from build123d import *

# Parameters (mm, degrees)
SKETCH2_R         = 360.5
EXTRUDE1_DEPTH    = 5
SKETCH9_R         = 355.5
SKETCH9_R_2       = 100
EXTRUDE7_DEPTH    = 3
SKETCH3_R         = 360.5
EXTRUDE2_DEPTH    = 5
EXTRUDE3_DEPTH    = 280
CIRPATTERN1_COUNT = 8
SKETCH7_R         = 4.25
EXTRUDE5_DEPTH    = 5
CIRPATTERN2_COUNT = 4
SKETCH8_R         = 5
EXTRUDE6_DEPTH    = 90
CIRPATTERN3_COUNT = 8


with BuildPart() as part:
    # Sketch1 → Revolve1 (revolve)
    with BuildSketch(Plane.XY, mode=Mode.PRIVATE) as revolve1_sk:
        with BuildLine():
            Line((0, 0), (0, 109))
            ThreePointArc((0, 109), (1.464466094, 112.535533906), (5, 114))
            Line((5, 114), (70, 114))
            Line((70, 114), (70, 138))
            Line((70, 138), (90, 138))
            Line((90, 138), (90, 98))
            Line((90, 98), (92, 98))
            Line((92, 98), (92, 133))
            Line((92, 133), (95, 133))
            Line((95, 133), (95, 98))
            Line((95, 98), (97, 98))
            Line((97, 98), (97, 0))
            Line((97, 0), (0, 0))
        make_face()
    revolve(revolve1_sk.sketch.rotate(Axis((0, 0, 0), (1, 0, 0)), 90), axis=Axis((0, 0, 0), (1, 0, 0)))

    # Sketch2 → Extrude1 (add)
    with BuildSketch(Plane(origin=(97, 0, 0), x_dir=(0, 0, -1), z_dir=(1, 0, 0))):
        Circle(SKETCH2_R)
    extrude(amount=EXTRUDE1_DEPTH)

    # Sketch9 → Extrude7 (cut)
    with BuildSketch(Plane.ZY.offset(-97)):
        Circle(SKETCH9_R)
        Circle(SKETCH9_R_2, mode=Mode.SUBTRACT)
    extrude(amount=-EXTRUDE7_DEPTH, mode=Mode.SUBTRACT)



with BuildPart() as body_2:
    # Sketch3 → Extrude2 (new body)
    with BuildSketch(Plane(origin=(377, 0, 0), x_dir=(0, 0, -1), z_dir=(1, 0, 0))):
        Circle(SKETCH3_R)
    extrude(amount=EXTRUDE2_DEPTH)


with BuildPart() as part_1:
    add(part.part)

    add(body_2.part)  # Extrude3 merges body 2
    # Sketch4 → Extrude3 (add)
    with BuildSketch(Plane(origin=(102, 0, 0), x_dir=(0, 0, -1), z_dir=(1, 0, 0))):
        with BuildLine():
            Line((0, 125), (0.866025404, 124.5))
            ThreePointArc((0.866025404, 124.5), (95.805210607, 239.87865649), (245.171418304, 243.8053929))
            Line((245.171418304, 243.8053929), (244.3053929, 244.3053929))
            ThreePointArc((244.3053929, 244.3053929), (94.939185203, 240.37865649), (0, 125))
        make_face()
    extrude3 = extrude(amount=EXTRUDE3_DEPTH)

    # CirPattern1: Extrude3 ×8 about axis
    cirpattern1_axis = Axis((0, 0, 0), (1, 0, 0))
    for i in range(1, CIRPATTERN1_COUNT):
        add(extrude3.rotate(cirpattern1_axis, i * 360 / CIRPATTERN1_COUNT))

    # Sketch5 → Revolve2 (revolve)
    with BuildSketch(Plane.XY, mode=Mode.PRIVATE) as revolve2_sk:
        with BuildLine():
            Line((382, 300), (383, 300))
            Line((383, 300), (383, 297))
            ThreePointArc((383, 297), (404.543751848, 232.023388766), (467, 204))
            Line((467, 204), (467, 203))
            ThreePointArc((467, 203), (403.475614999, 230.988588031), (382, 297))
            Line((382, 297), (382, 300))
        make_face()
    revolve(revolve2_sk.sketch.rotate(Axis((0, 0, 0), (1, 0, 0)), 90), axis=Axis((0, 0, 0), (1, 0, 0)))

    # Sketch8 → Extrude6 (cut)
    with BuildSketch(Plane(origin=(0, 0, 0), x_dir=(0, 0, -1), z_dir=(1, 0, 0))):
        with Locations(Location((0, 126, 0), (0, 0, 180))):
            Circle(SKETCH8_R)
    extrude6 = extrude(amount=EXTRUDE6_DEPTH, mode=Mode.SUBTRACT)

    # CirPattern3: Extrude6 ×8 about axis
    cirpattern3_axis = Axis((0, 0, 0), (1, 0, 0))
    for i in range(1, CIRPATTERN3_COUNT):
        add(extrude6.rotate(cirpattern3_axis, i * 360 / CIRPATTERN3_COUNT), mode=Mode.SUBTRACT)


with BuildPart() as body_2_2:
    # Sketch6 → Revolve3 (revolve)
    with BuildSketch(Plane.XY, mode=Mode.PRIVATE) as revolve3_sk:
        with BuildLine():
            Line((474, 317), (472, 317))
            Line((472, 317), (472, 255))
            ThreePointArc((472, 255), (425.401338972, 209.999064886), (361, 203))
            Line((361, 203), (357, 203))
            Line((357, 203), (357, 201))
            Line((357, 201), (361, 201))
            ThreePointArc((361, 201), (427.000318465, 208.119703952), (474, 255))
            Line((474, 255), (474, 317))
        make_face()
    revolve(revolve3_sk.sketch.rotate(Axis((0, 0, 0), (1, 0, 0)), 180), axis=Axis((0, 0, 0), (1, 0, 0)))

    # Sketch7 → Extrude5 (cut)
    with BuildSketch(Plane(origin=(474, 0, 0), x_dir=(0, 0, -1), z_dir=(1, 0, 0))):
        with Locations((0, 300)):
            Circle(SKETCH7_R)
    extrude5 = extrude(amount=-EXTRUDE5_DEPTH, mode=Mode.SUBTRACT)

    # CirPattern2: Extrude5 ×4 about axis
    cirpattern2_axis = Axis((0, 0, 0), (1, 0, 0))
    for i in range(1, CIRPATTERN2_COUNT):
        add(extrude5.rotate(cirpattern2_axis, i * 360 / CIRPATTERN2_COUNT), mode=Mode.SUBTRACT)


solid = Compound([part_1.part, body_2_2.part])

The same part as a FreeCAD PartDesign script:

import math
import FreeCAD as App
import Part
import Sketcher

V = App.Vector
Q = App.Units.Quantity

doc = App.newDocument("Part")
body = doc.addObject("PartDesign::Body", "Body")

sketch1 = body.newObject("Sketcher::SketchObject", "Sketch")
sketch1.AttachmentSupport = (doc.getObject("XY_Plane"), [""])
sketch1.MapMode = "FlatFace"
sketch1.addGeometry(Part.LineSegment(V(0, 109, 0), V(0, 0, 0)), False)
sketch1.addGeometry(Part.LineSegment(V(0, 0, 0), V(97, 0, 0)), False)
sketch1.addGeometry(Part.LineSegment(V(97, 0, 0), V(97, 98, 0)), False)
sketch1.addGeometry(Part.LineSegment(V(97, 98, 0), V(95, 98, 0)), False)
sketch1.addGeometry(Part.LineSegment(V(95, 98, 0), V(95, 133, 0)), False)
sketch1.addGeometry(Part.LineSegment(V(95, 133, 0), V(92, 133, 0)), False)
sketch1.addGeometry(Part.LineSegment(V(92, 133, 0), V(92, 98, 0)), False)
sketch1.addGeometry(Part.LineSegment(V(92, 98, 0), V(90, 98, 0)), False)
sketch1.addGeometry(Part.LineSegment(V(90, 98, 0), V(90, 138, 0)), False)
sketch1.addGeometry(Part.LineSegment(V(90, 138, 0), V(70, 138, 0)), False)
sketch1.addGeometry(Part.LineSegment(V(70, 138, 0), V(70, 114, 0)), False)
sketch1.addGeometry(Part.LineSegment(V(70, 114, 0), V(5, 114, 0)), False)
sketch1.addGeometry(Part.ArcOfCircle(Part.Circle(V(5, 109, 0), V(0, 0, 1), 5), math.radians(90), math.radians(180)), False)
sketch1.addConstraint(Sketcher.Constraint("Coincident", 0, 2, 1, 1))
sketch1.addConstraint(Sketcher.Constraint("Coincident", 1, 2, 2, 1))
sketch1.addConstraint(Sketcher.Constraint("Coincident", 2, 2, 3, 1))
sketch1.addConstraint(Sketcher.Constraint("Coincident", 3, 2, 4, 1))
sketch1.addConstraint(Sketcher.Constraint("Coincident", 4, 2, 5, 1))
sketch1.addConstraint(Sketcher.Constraint("Coincident", 5, 2, 6, 1))
sketch1.addConstraint(Sketcher.Constraint("Coincident", 6, 2, 7, 1))
sketch1.addConstraint(Sketcher.Constraint("Coincident", 7, 2, 8, 1))
sketch1.addConstraint(Sketcher.Constraint("Coincident", 8, 2, 9, 1))
sketch1.addConstraint(Sketcher.Constraint("Coincident", 9, 2, 10, 1))
sketch1.addConstraint(Sketcher.Constraint("Coincident", 10, 2, 11, 1))
sketch1.addConstraint(Sketcher.Constraint("Tangent", 11, 2, 12, 1))
sketch1.addConstraint(Sketcher.Constraint("Tangent", 12, 2, 0, 1))
sketch1.addConstraint(Sketcher.Constraint("Vertical", 0))
sketch1.addConstraint(Sketcher.Constraint("Horizontal", 1))
sketch1.addConstraint(Sketcher.Constraint("Vertical", 2))
sketch1.addConstraint(Sketcher.Constraint("Horizontal", 3))
sketch1.addConstraint(Sketcher.Constraint("Vertical", 4))
sketch1.addConstraint(Sketcher.Constraint("Horizontal", 5))
sketch1.addConstraint(Sketcher.Constraint("Vertical", 6))
sketch1.addConstraint(Sketcher.Constraint("Horizontal", 7))
sketch1.addConstraint(Sketcher.Constraint("Vertical", 8))
sketch1.addConstraint(Sketcher.Constraint("Horizontal", 9))
sketch1.addConstraint(Sketcher.Constraint("Vertical", 10))
sketch1.addConstraint(Sketcher.Constraint("Horizontal", 11))
sketch1.addConstraint(Sketcher.Constraint("Coincident", 0, 2, -1, 1))
sketch1.addConstraint(Sketcher.Constraint("Horizontal", 3, 2, 6, 2))
sketch1.addConstraint(Sketcher.Constraint("Equal", 3, 7))
sketch1.addConstraint(Sketcher.Constraint("Radius", 12, Q("5 mm")))
sketch1.addConstraint(Sketcher.Constraint("DistanceX", 1, 1, 1, 2, Q("97 mm")))
sketch1.addConstraint(Sketcher.Constraint("DistanceX", 3, 2, 3, 1, Q("2 mm")))
sketch1.addConstraint(Sketcher.Constraint("DistanceX", 5, 2, 5, 1, Q("3 mm")))
sketch1.addConstraint(Sketcher.Constraint("DistanceX", 9, 2, 9, 1, Q("20 mm")))
sketch1.addConstraint(Sketcher.Constraint("DistanceY", 0, 2, 0, 1, Q("109 mm")))
sketch1.addConstraint(Sketcher.Constraint("DistanceY", 2, 1, 2, 2, Q("98 mm")))
sketch1.addConstraint(Sketcher.Constraint("DistanceY", 4, 1, 4, 2, Q("35 mm")))
sketch1.addConstraint(Sketcher.Constraint("DistanceY", 8, 1, 8, 2, Q("40 mm")))
revolution = body.newObject("PartDesign::Revolution", "Revolution")
revolution.Profile = sketch1
revolution.ReferenceAxis = (sketch1, ["H_Axis"])
revolution.Angle = 360

sketch2 = body.newObject("Sketcher::SketchObject", "Sketch001")
sketch2.AttachmentSupport = (doc.getObject("YZ_Plane"), [""])
sketch2.MapMode = "FlatFace"
sketch2.AttachmentOffset = App.Placement(V(0, 0, 97), App.Rotation())
sketch2.addGeometry(Part.Circle(V(0, 0, 0), V(0, 0, 1), 360), False)
sketch2.addConstraint(Sketcher.Constraint("Coincident", 0, 3, -1, 1))
sketch2.addConstraint(Sketcher.Constraint("Diameter", 0, Q("721 mm")))
pad1 = body.newObject("PartDesign::Pad", "Pad")
pad1.Profile = sketch2
pad1.Length = 5

sketch3 = body.newObject("Sketcher::SketchObject", "Sketch002")
sketch3.AttachmentSupport = (doc.getObject("YZ_Plane"), [""])
sketch3.MapMode = "FlatFace"
sketch3.AttachmentOffset = App.Placement(V(0, 0, 97), App.Rotation())
sketch3.addGeometry(Part.Circle(V(0, 0, 0), V(0, 0, 1), 356), False)
sketch3.addGeometry(Part.Circle(V(0, 0, 0), V(0, 0, 1), 100), False)
sketch3.addConstraint(Sketcher.Constraint("Coincident", 0, 3, -1, 1))
sketch3.addConstraint(Sketcher.Constraint("Coincident", 1, 3, -1, 1))
sketch3.addConstraint(Sketcher.Constraint("Diameter", 0, Q("711 mm")))
sketch3.addConstraint(Sketcher.Constraint("Diameter", 1, Q("200 mm")))
pocket1 = body.newObject("PartDesign::Pocket", "Pocket")
pocket1.Profile = sketch3
pocket1.Length = 3
pocket1.Reversed = True
body2 = doc.addObject("PartDesign::Body", "Body001")

sketch4 = body2.newObject("Sketcher::SketchObject", "Sketch003")
sketch4.AttachmentSupport = (doc.getObject("YZ_Plane001"), [""])
sketch4.MapMode = "FlatFace"
sketch4.AttachmentOffset = App.Placement(V(0, 0, 377), App.Rotation())
sketch4.addGeometry(Part.Circle(V(0, 0, 0), V(0, 0, 1), 360), False)
sketch4.addConstraint(Sketcher.Constraint("Coincident", 0, 3, -1, 1))
sketch4.addConstraint(Sketcher.Constraint("Diameter", 0, Q("721 mm")))
pad2 = body2.newObject("PartDesign::Pad", "Pad001")
pad2.Profile = sketch4
pad2.Length = 5
body.AllowCompound = True
doc.recompute()

boolean = body.newObject("PartDesign::Boolean", "Boolean")
boolean.Type = "Fuse"
boolean.addObjects([body2])

sketch5 = body.newObject("Sketcher::SketchObject", "Sketch004")
sketch5.AttachmentSupport = (doc.getObject("YZ_Plane"), [""])
sketch5.MapMode = "FlatFace"
sketch5.AttachmentOffset = App.Placement(V(0, 0, 102), App.Rotation())
sketch5.addGeometry(Part.LineSegment(V(125, 0, 0), V(124.5, -0.9, 0)), False)
sketch5.addGeometry(Part.ArcOfCircle(Part.Circle(V(78.1, -174.8, 0), V(0, 0, 1), 180), math.radians(-23), math.radians(75)), False)
sketch5.addGeometry(Part.LineSegment(V(243.8, -245.2, 0), V(244.3, -244.3, 0)), False)
sketch5.addGeometry(Part.ArcOfCircle(Part.Circle(V(78.6, -173.9, 0), V(0, 0, 1), 180), math.radians(-23), math.radians(75)), False)
sketch5.addConstraint(Sketcher.Constraint("Coincident", 0, 2, 1, 2))
sketch5.addConstraint(Sketcher.Constraint("Coincident", 1, 1, 2, 1))
sketch5.addConstraint(Sketcher.Constraint("Coincident", 2, 2, 3, 1))
sketch5.addConstraint(Sketcher.Constraint("Coincident", 3, 2, 0, 1))
sketch5.addConstraint(Sketcher.Constraint("Equal", 1, 3))
sketch5.addConstraint(Sketcher.Constraint("PointOnObject", 3, 2, -1))
sketch5.addConstraint(Sketcher.Constraint("Parallel", 0, 2))
sketch5.addConstraint(Sketcher.Constraint("Equal", 0, 2))
sketch5.addConstraint(Sketcher.Constraint("Radius", 1, Q("180 mm")))
sketch5.addConstraint(Sketcher.Constraint("Angle", 0, Q("-120 deg")))
sketch5.addConstraint(Sketcher.Constraint("Distance", 0, Q("1 mm")))
sketch5.addConstraint(Sketcher.Constraint("DistanceX", -1, 1, 3, 2, Q("125 mm")))
sketch5.addConstraint(Sketcher.Constraint("DistanceY", 3, 3, -1, 1, Q("173.926041 mm")))
sketch5.addConstraint(Sketcher.Constraint("DistanceY", 1, 1, -1, 1, Q("245.171418 mm")))
pad3 = body.newObject("PartDesign::Pad", "Pad002")
pad3.Profile = sketch5
pad3.Length = 280
doc.recompute()

polarpattern = body.newObject("PartDesign::PolarPattern", "PolarPattern")
polarpattern.Originals = [pad3]
polarpattern.Axis = (doc.getObject("X_Axis"), [""])
polarpattern.Angle = 360
polarpattern.Occurrences = 8
body.Tip = polarpattern

sketch6 = body.newObject("Sketcher::SketchObject", "Sketch005")
sketch6.AttachmentSupport = (doc.getObject("XY_Plane"), [""])
sketch6.MapMode = "FlatFace"
sketch6.addGeometry(Part.LineSegment(V(383, 300, 0), V(382, 300, 0)), False)
sketch6.addGeometry(Part.LineSegment(V(382, 300, 0), V(382, 297, 0)), False)
sketch6.addGeometry(Part.ArcOfCircle(Part.Circle(V(466.5, 288, 0), V(0, 0, 1), 85), math.radians(174), math.radians(270)), False)
sketch6.addGeometry(Part.LineSegment(V(467, 203, 0), V(467, 204, 0)), False)
sketch6.addGeometry(Part.ArcOfCircle(Part.Circle(V(467.6, 289, 0), V(0, 0, 1), 85), math.radians(175), math.radians(270)), False)
sketch6.addGeometry(Part.LineSegment(V(383, 297, 0), V(383, 300, 0)), False)
sketch6.addConstraint(Sketcher.Constraint("Coincident", 0, 2, 1, 1))
sketch6.addConstraint(Sketcher.Constraint("Coincident", 1, 2, 2, 1))
sketch6.addConstraint(Sketcher.Constraint("Coincident", 2, 2, 3, 1))
sketch6.addConstraint(Sketcher.Constraint("Coincident", 3, 2, 4, 2))
sketch6.addConstraint(Sketcher.Constraint("Coincident", 4, 1, 5, 1))
sketch6.addConstraint(Sketcher.Constraint("Coincident", 5, 2, 0, 1))
sketch6.addConstraint(Sketcher.Constraint("Horizontal", 0))
sketch6.addConstraint(Sketcher.Constraint("Vertical", 1))
sketch6.addConstraint(Sketcher.Constraint("Vertical", 3))
sketch6.addConstraint(Sketcher.Constraint("Vertical", 5))
sketch6.addConstraint(Sketcher.Constraint("Equal", 2, 4))
sketch6.addConstraint(Sketcher.Constraint("Horizontal", 1, 2, 4, 1))
sketch6.addConstraint(Sketcher.Constraint("Equal", 0, 3))
sketch6.addConstraint(Sketcher.Constraint("Radius", 2, Q("85 mm")))
sketch6.addConstraint(Sketcher.Constraint("DistanceX", 0, 2, 0, 1, Q("1 mm")))
sketch6.addConstraint(Sketcher.Constraint("DistanceY", 1, 2, 1, 1, Q("3 mm")))
sketch6.addConstraint(Sketcher.Constraint("DistanceX", -1, 1, 0, 2, Q("382 mm")))
sketch6.addConstraint(Sketcher.Constraint("DistanceY", -1, 1, 0, 2, Q("300 mm")))
sketch6.addConstraint(Sketcher.Constraint("DistanceX", -1, 1, 2, 2, Q("467 mm")))
sketch6.addConstraint(Sketcher.Constraint("DistanceY", -1, 1, 2, 2, Q("203 mm")))
revolution2 = body.newObject("PartDesign::Revolution", "Revolution001")
revolution2.Profile = sketch6
revolution2.ReferenceAxis = (sketch6, ["H_Axis"])
revolution2.Angle = 360

sketch7 = body.newObject("Sketcher::SketchObject", "Sketch006")
sketch7.AttachmentSupport = (doc.getObject("YZ_Plane"), [""])
sketch7.MapMode = "FlatFace"
sketch7.addGeometry(Part.Circle(V(126, 0, 0), V(0, 0, 1), 5), False)
sketch7.addConstraint(Sketcher.Constraint("PointOnObject", 0, 3, -1))
sketch7.addConstraint(Sketcher.Constraint("Diameter", 0, Q("10 mm")))
sketch7.addConstraint(Sketcher.Constraint("DistanceX", -1, 1, 0, 3, Q("126 mm")))
pocket2 = body.newObject("PartDesign::Pocket", "Pocket001")
pocket2.Profile = sketch7
pocket2.Length = 90
pocket2.Reversed = True
doc.recompute()

polarpattern2 = body.newObject("PartDesign::PolarPattern", "PolarPattern001")
polarpattern2.Originals = [pocket2]
polarpattern2.Axis = (doc.getObject("X_Axis"), [""])
polarpattern2.Angle = 360
polarpattern2.Occurrences = 8
body.Tip = polarpattern2
body3 = doc.addObject("PartDesign::Body", "Body002")

sketch8 = body3.newObject("Sketcher::SketchObject", "Sketch007")
sketch8.AttachmentSupport = (doc.getObject("XY_Plane002"), [""])
sketch8.MapMode = "FlatFace"
sketch8.addGeometry(Part.LineSegment(V(474, 317, 0), V(472, 317, 0)), False)
sketch8.addGeometry(Part.LineSegment(V(472, 317, 0), V(472, 255, 0)), False)
sketch8.addGeometry(Part.ArcOfCircle(Part.Circle(V(383, 300.6, 0), V(0, 0, 1), 100), math.radians(-103), math.radians(-27)), False)
sketch8.addGeometry(Part.LineSegment(V(361, 203, 0), V(357, 203, 0)), False)
sketch8.addGeometry(Part.LineSegment(V(357, 203, 0), V(357, 201, 0)), False)
sketch8.addGeometry(Part.LineSegment(V(357, 201, 0), V(361, 201, 0)), False)
sketch8.addGeometry(Part.ArcOfCircle(Part.Circle(V(383.9, 298.3, 0), V(0, 0, 1), 100), math.radians(-103), math.radians(-26)), False)
sketch8.addGeometry(Part.LineSegment(V(474, 255, 0), V(474, 317, 0)), False)
sketch8.addConstraint(Sketcher.Constraint("Coincident", 0, 2, 1, 1))
sketch8.addConstraint(Sketcher.Constraint("Coincident", 1, 2, 2, 2))
sketch8.addConstraint(Sketcher.Constraint("Coincident", 2, 1, 3, 1))
sketch8.addConstraint(Sketcher.Constraint("Coincident", 3, 2, 4, 1))
sketch8.addConstraint(Sketcher.Constraint("Coincident", 4, 2, 5, 1))
sketch8.addConstraint(Sketcher.Constraint("Coincident", 5, 2, 6, 1))
sketch8.addConstraint(Sketcher.Constraint("Coincident", 6, 2, 7, 1))
sketch8.addConstraint(Sketcher.Constraint("Coincident", 7, 2, 0, 1))
sketch8.addConstraint(Sketcher.Constraint("Horizontal", 0))
sketch8.addConstraint(Sketcher.Constraint("Vertical", 1))
sketch8.addConstraint(Sketcher.Constraint("Horizontal", 3))
sketch8.addConstraint(Sketcher.Constraint("Vertical", 4))
sketch8.addConstraint(Sketcher.Constraint("Horizontal", 5))
sketch8.addConstraint(Sketcher.Constraint("Vertical", 7))
sketch8.addConstraint(Sketcher.Constraint("Equal", 2, 6))
sketch8.addConstraint(Sketcher.Constraint("Horizontal", 1, 2, 6, 2))
sketch8.addConstraint(Sketcher.Constraint("Vertical", 2, 1, 5, 2))
sketch8.addConstraint(Sketcher.Constraint("Equal", 0, 4))
sketch8.addConstraint(Sketcher.Constraint("Radius", 2, Q("100 mm")))
sketch8.addConstraint(Sketcher.Constraint("DistanceX", 0, 2, 0, 1, Q("2 mm")))
sketch8.addConstraint(Sketcher.Constraint("DistanceX", 3, 2, 3, 1, Q("4 mm")))
sketch8.addConstraint(Sketcher.Constraint("DistanceY", 1, 2, 1, 1, Q("62 mm")))
sketch8.addConstraint(Sketcher.Constraint("DistanceX", -1, 1, 0, 2, Q("472 mm")))
sketch8.addConstraint(Sketcher.Constraint("DistanceY", -1, 1, 0, 2, Q("317 mm")))
sketch8.addConstraint(Sketcher.Constraint("DistanceX", -1, 1, 2, 1, Q("361 mm")))
sketch8.addConstraint(Sketcher.Constraint("DistanceY", -1, 1, 2, 1, Q("203 mm")))
revolution3 = body3.newObject("PartDesign::Revolution", "Revolution002")
revolution3.Profile = sketch8
revolution3.ReferenceAxis = (sketch8, ["H_Axis"])
revolution3.Angle = 360

sketch9 = body3.newObject("Sketcher::SketchObject", "Sketch008")
sketch9.AttachmentSupport = (doc.getObject("YZ_Plane002"), [""])
sketch9.MapMode = "FlatFace"
sketch9.AttachmentOffset = App.Placement(V(0, 0, 474), App.Rotation())
sketch9.addGeometry(Part.Circle(V(300, 0, 0), V(0, 0, 1), 4.2), False)
sketch9.addConstraint(Sketcher.Constraint("PointOnObject", 0, 3, -1))
sketch9.addConstraint(Sketcher.Constraint("Diameter", 0, Q("8.5 mm")))
sketch9.addConstraint(Sketcher.Constraint("DistanceX", -1, 1, 0, 3, Q("300 mm")))
pocket3 = body3.newObject("PartDesign::Pocket", "Pocket002")
pocket3.Profile = sketch9
pocket3.Length = 5
doc.recompute()

polarpattern3 = body3.newObject("PartDesign::PolarPattern", "PolarPattern002")
polarpattern3.Originals = [pocket3]
polarpattern3.Axis = (doc.getObject("X_Axis002"), [""])
polarpattern3.Angle = 360
polarpattern3.Occurrences = 4
body3.Tip = polarpattern3

doc.recompute()
